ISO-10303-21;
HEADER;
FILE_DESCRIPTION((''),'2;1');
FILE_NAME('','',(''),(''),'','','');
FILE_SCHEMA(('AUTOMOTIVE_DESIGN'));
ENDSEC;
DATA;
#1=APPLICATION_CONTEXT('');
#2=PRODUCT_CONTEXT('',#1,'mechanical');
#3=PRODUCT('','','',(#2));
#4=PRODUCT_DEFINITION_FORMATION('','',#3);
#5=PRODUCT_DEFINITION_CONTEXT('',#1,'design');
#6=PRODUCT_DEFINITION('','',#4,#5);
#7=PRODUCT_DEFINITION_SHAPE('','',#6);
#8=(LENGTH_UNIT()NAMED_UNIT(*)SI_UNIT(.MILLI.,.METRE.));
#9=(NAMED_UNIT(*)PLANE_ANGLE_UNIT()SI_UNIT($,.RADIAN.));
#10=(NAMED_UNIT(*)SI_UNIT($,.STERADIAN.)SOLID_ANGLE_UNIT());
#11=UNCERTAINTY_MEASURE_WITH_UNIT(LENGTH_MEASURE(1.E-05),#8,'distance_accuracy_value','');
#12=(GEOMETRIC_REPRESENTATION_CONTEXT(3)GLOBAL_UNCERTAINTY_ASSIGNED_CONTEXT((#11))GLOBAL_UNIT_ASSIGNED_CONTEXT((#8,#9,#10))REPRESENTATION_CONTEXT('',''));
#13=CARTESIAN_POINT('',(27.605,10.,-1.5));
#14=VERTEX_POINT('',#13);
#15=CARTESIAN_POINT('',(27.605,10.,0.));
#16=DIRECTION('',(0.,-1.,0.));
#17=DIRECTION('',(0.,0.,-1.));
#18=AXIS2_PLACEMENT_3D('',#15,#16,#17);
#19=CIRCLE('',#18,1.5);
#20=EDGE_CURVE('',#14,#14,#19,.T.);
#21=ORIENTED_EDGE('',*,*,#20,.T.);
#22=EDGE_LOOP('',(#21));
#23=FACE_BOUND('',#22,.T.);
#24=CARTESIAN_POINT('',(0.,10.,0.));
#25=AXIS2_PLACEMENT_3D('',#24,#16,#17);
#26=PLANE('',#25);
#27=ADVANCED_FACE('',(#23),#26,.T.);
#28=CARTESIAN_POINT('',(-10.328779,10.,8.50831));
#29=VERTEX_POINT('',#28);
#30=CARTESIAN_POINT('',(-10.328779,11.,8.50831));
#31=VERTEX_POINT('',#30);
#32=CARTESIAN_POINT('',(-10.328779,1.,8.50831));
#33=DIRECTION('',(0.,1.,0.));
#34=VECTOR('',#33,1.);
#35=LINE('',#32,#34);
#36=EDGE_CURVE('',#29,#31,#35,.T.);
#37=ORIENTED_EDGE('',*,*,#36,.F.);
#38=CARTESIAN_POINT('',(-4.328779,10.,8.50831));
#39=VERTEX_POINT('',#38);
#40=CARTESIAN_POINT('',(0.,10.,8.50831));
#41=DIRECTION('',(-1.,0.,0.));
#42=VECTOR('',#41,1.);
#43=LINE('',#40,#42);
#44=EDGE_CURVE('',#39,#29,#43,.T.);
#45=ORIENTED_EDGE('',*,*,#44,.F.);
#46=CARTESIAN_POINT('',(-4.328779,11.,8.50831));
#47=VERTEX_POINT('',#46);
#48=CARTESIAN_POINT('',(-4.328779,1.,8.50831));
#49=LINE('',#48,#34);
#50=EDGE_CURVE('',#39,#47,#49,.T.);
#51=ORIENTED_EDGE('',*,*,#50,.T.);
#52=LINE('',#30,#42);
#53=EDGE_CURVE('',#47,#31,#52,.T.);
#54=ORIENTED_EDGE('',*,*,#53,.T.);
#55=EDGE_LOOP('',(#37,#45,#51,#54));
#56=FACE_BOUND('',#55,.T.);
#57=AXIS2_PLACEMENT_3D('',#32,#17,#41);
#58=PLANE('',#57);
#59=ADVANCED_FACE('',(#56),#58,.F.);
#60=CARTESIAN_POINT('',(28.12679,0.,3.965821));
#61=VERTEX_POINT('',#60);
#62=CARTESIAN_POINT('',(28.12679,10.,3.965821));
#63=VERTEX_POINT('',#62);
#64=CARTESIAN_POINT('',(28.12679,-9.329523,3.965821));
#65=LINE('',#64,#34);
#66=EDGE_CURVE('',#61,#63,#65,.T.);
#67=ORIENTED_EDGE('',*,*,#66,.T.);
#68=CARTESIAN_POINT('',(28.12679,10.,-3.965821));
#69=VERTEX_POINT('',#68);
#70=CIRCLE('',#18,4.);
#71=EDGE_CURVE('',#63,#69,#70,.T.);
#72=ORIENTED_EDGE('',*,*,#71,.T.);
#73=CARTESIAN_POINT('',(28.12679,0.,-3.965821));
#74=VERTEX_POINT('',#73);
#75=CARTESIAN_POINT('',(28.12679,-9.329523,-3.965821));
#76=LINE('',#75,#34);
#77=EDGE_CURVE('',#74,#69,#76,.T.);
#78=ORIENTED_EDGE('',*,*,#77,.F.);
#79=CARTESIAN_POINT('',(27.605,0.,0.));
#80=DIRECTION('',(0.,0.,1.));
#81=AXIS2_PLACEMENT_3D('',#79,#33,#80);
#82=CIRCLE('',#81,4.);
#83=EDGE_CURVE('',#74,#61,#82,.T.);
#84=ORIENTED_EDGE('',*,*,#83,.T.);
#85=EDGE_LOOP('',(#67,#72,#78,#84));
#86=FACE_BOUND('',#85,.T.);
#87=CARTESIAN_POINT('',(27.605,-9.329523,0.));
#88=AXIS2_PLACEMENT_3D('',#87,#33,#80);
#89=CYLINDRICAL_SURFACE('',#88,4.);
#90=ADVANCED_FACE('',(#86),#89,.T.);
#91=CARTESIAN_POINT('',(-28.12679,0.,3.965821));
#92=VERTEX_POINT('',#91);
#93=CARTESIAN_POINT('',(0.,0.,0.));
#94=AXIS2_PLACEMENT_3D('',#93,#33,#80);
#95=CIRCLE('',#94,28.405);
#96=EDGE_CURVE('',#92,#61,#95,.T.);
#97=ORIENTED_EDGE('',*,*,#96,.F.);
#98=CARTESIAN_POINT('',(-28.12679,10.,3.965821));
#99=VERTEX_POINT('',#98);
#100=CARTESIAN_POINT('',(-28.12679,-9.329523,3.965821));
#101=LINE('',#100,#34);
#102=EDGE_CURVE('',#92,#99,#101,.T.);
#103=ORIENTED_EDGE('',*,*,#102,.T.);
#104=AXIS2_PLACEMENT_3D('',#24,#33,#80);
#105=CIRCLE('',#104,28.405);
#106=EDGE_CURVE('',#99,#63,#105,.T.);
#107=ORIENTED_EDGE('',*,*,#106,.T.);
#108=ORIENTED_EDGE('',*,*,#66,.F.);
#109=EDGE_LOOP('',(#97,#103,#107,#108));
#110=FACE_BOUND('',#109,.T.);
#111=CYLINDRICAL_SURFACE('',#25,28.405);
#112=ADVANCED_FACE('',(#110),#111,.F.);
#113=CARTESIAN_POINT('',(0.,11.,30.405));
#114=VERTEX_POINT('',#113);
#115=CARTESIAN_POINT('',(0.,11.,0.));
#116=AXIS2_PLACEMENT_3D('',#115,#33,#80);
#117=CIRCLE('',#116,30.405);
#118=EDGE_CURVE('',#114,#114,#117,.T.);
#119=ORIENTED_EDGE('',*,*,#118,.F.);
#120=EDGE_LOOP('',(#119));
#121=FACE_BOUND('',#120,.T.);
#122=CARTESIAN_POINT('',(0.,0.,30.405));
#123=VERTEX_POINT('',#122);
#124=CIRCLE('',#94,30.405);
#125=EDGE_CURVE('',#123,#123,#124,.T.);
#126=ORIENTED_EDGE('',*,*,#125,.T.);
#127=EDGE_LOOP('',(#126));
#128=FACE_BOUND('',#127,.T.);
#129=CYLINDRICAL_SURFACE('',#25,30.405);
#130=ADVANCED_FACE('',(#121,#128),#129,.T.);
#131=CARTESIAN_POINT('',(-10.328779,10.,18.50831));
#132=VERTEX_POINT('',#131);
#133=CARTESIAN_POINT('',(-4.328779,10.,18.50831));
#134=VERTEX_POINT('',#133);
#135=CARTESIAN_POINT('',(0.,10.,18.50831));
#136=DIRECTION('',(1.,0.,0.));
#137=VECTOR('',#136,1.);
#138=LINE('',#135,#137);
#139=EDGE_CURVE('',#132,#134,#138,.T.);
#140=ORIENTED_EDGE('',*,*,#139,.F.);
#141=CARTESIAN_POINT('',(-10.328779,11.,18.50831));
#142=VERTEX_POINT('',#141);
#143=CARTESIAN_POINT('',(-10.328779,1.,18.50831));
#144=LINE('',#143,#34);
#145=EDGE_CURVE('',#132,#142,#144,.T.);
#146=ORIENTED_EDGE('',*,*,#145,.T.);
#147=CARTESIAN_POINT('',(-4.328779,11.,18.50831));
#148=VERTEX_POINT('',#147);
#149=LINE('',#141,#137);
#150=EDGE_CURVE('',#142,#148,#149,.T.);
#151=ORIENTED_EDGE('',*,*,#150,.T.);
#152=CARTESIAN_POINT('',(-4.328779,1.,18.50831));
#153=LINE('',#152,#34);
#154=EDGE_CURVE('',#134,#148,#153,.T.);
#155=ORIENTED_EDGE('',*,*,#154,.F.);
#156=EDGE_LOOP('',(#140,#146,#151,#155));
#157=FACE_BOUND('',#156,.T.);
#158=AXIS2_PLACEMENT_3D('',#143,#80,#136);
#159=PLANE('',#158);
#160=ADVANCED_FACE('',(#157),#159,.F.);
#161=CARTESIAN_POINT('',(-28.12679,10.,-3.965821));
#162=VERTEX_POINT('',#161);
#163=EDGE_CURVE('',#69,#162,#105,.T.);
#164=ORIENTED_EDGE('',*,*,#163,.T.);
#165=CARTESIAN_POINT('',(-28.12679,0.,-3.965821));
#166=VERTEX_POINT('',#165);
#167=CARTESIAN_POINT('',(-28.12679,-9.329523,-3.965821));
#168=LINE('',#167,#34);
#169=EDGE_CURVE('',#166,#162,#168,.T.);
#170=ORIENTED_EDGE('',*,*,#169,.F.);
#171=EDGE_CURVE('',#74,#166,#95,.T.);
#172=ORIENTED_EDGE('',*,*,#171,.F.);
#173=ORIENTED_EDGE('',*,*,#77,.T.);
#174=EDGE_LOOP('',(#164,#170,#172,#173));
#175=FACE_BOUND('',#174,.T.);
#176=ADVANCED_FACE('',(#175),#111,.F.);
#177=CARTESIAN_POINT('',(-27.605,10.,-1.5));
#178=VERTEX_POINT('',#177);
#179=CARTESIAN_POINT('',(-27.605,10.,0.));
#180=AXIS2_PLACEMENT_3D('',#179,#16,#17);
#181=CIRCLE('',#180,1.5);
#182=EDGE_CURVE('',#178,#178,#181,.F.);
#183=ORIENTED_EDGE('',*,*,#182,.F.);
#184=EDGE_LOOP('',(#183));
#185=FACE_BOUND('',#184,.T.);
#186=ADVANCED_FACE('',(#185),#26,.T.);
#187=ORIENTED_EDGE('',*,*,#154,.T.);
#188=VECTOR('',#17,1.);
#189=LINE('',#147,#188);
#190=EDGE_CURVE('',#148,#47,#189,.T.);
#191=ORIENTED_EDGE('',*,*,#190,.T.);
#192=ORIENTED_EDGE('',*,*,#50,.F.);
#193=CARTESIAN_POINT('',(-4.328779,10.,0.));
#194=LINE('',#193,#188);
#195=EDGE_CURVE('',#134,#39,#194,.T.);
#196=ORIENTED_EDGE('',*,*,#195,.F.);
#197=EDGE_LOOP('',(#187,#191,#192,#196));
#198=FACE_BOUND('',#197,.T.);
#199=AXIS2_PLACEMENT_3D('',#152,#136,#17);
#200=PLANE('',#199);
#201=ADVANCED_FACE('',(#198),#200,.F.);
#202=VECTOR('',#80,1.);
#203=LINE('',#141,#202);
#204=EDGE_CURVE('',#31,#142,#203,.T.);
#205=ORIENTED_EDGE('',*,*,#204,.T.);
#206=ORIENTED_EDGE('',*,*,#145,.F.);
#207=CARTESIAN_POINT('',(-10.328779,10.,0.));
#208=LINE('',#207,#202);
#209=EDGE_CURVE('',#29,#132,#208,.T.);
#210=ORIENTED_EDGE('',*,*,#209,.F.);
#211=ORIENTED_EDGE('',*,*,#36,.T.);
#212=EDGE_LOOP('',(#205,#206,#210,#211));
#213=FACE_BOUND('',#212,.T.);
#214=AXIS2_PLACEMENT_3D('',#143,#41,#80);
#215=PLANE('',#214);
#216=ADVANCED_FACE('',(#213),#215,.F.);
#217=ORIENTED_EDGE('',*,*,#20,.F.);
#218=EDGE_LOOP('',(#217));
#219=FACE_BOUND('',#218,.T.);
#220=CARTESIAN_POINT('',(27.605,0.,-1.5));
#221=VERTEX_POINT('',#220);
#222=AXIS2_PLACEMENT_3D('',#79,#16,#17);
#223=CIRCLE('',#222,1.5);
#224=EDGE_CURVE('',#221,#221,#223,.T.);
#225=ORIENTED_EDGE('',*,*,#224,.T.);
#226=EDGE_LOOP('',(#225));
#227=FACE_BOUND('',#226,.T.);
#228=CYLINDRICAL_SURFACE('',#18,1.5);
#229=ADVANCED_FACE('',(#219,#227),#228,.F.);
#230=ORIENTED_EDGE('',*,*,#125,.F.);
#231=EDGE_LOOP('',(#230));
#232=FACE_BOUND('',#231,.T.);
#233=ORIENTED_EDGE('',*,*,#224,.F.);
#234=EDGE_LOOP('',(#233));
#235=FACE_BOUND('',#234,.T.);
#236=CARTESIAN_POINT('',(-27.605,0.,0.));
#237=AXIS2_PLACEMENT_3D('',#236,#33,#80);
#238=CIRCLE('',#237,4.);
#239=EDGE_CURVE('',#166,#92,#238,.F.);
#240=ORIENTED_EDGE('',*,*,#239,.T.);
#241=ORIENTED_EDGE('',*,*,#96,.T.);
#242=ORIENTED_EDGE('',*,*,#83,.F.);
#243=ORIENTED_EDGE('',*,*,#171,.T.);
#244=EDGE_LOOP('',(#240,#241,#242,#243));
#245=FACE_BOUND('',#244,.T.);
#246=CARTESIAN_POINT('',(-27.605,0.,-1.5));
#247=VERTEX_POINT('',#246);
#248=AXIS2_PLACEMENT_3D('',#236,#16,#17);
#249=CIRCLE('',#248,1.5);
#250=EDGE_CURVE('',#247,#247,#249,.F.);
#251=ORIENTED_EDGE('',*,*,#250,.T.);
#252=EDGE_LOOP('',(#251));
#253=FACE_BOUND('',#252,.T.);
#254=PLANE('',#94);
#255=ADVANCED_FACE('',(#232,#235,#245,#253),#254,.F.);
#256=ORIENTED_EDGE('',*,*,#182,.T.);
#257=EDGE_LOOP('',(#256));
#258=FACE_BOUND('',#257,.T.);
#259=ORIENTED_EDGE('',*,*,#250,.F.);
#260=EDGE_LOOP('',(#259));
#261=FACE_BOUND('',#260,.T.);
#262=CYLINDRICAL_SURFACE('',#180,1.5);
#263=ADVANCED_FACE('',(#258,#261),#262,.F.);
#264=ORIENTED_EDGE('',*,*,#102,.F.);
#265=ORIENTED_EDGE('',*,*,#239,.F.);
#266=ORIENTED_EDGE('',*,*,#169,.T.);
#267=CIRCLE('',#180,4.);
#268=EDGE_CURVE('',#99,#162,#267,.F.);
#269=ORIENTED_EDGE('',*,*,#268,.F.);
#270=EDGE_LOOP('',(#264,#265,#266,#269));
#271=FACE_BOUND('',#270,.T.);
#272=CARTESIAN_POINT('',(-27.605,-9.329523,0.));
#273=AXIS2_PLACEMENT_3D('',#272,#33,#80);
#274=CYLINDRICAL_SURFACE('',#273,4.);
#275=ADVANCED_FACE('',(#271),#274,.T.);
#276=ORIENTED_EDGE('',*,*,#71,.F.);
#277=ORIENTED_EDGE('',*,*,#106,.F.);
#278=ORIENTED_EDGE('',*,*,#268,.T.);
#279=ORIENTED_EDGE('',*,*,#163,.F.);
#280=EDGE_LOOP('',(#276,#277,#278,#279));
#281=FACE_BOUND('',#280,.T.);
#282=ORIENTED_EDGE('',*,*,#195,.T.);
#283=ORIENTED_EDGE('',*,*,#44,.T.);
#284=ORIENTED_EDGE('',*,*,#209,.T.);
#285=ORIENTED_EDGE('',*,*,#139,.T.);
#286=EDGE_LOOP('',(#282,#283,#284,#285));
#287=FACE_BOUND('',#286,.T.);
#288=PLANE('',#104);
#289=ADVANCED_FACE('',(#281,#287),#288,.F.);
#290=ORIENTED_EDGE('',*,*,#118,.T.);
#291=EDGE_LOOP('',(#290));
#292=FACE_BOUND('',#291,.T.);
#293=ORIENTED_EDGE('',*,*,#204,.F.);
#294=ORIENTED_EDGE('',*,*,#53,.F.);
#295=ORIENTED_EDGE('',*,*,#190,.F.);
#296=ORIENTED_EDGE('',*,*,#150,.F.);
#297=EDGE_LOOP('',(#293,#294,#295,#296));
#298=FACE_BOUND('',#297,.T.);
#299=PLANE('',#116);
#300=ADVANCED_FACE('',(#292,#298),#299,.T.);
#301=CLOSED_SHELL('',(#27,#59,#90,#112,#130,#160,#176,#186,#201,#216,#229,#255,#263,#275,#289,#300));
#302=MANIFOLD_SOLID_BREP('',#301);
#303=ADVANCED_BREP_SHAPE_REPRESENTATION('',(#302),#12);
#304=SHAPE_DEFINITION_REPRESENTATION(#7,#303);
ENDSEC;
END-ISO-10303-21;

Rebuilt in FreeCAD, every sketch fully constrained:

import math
import FreeCAD as App
import Part
import Sketcher

V = App.Vector
Q = App.Units.Quantity

doc = App.newDocument("Part")
body = doc.addObject("PartDesign::Body", "Body")

# Sketch on XZ plane
sketch1 = doc.addObject("Sketcher::SketchObject", "Sketch")
body.addObject(sketch1)
sketch1.AttachmentSupport = (doc.XZ_Plane, [""])
sketch1.MapMode = "FlatFace"
sketch1.addGeometry(Part.Circle(V(0, 0, 0), V(0, 0, 1), 30), False)
sketch1.addGeometry(Part.Circle(V(0, 0, 0), V(0, 0, 1), 28), False)
sketch1.addConstraint(Sketcher.Constraint("Coincident", 0, 3, -1, 1))
sketch1.addConstraint(Sketcher.Constraint("Coincident", 1, 3, -1, 1))
sketch1.addConstraint(Sketcher.Constraint("Diameter", 0, Q("60.81 mm")))
sketch1.addConstraint(Sketcher.Constraint("Diameter", 1, Q("56.81 mm")))
pad1 = doc.addObject("PartDesign::Pad", "Pad")
body.addObject(pad1)
pad1.Profile = sketch1
pad1.Length = 10
pad1.Reversed = True

# Sketch on XZ plane
sketch2 = doc.addObject("Sketcher::SketchObject", "Sketch001")
body.addObject(sketch2)
sketch2.AttachmentSupport = (doc.XZ_Plane, [""])
sketch2.MapMode = "FlatFace"
sketch2.AttachmentOffset = App.Placement(V(0, 0, -10), App.Rotation())
sketch2.addGeometry(Part.Circle(V(0, 0, 0), V(0, 0, 1), 30), False)
sketch2.addConstraint(Sketcher.Constraint("Coincident", 0, 3, -1, 1))
sketch2.addConstraint(Sketcher.Constraint("Diameter", 0, Q("60.81 mm")))
pad2 = doc.addObject("PartDesign::Pad", "Pad001")
body.addObject(pad2)
pad2.Profile = sketch2
pad2.Length = 1
pad2.Reversed = True

# Sketch on XZ plane
sketch3 = doc.addObject("Sketcher::SketchObject", "Sketch002")
body.addObject(sketch3)
sketch3.AttachmentSupport = (doc.XZ_Plane, [""])
sketch3.MapMode = "FlatFace"
sketch3.addGeometry(Part.ArcOfCircle(Part.Circle(V(-27.6, 0, 0), V(0, 0, 1), 4), math.radians(-97), math.radians(97)), False)
sketch3.addGeometry(Part.ArcOfCircle(Part.Circle(V(0, 0, 0), V(0, 0, 1), 28.4), math.radians(171.97), math.radians(188.03)), False)
sketch3.addGeometry(Part.ArcOfCircle(Part.Circle(V(0, 0, 0), V(0, 0, 1), 28.4), math.radians(0), math.radians(8.03)), False)
sketch3.addGeometry(Part.ArcOfCircle(Part.Circle(V(27.6, 0, 0), V(0, 0, 1), 4), math.radians(83), math.radians(277)), False)
sketch3.addGeometry(Part.ArcOfCircle(Part.Circle(V(0, 0, 0), V(0, 0, 1), 28.4), math.radians(-8.03), math.radians(0)), False)
sketch3.addConstraint(Sketcher.Constraint("Coincident", 0, 1, 1, 2))
sketch3.addConstraint(Sketcher.Constraint("Coincident", 1, 1, 0, 2))
sketch3.addConstraint(Sketcher.Constraint("Coincident", 2, 2, 3, 1))
sketch3.addConstraint(Sketcher.Constraint("Coincident", 3, 2, 4, 1))
sketch3.addConstraint(Sketcher.Constraint("Tangent", 4, 2, 2, 1))
sketch3.addConstraint(Sketcher.Constraint("Coincident", 1, 3, -1, 1))
sketch3.addConstraint(Sketcher.Constraint("Coincident", 2, 3, -1, 1))
sketch3.addConstraint(Sketcher.Constraint("Equal", 1, 2))
sketch3.addConstraint(Sketcher.Constraint("Equal", 0, 3))
sketch3.addConstraint(Sketcher.Constraint("Equal", 2, 4))
sketch3.addConstraint(Sketcher.Constraint("Symmetric", 0, 3, 3, 3, -1, 1))
sketch3.addConstraint(Sketcher.Constraint("PointOnObject", 0, 3, -1))
sketch3.addConstraint(Sketcher.Constraint("PointOnObject", 4, 2, -1))
sketch3.addConstraint(Sketcher.Constraint("Radius", 0, Q("4 mm")))
sketch3.addConstraint(Sketcher.Constraint("Radius", 1, Q("28.405 mm")))
sketch3.addConstraint(Sketcher.Constraint("DistanceX", 3, 3, 4, 2, Q("0.8 mm")))
pad3 = doc.addObject("PartDesign::Pad", "Pad002")
body.addObject(pad3)
pad3.Profile = sketch3
pad3.Length = 10
pad3.Reversed = True

# Sketch on XZ plane
sketch4 = doc.addObject("Sketcher::SketchObject", "Sketch003")
body.addObject(sketch4)
sketch4.AttachmentSupport = (doc.XZ_Plane, [""])
sketch4.MapMode = "FlatFace"
sketch4.addGeometry(Part.Circle(V(-27.6, 0, 0), V(0, 0, 1), 1.5), False)
sketch4.addGeometry(Part.Circle(V(27.6, 0, 0), V(0, 0, 1), 1.5), False)
sketch4.addConstraint(Sketcher.Constraint("Equal", 0, 1))
sketch4.addConstraint(Sketcher.Constraint("Symmetric", 0, 3, 1, 3, -1, 1))
sketch4.addConstraint(Sketcher.Constraint("PointOnObject", 0, 3, -1))
sketch4.addConstraint(Sketcher.Constraint("Diameter", 0, Q("3 mm")))
sketch4.addConstraint(Sketcher.Constraint("DistanceX", 0, 3, 1, 3, Q("55.21 mm")))
pocket1 = doc.addObject("PartDesign::Pocket", "Pocket")
body.addObject(pocket1)
pocket1.Profile = sketch4
pocket1.Length = 10

# Sketch on XZ plane
sketch5 = doc.addObject("Sketcher::SketchObject", "Sketch004")
body.addObject(sketch5)
sketch5.AttachmentSupport = (doc.XZ_Plane, [""])
sketch5.MapMode = "FlatFace"
sketch5.AttachmentOffset = App.Placement(V(0, 0, -11), App.Rotation())
sketch5.addGeometry(Part.LineSegment(V(-10, 9, 0), V(-10, 19, 0)), False)
sketch5.addGeometry(Part.LineSegment(V(-10, 19, 0), V(-4, 19, 0)), False)
sketch5.addGeometry(Part.LineSegment(V(-4, 19, 0), V(-4, 9, 0)), False)
sketch5.addGeometry(Part.LineSegment(V(-4, 9, 0), V(-10, 9, 0)), False)
sketch5.addConstraint(Sketcher.Constraint("Coincident", 0, 2, 1, 1))
sketch5.addConstraint(Sketcher.Constraint("Coincident", 1, 2, 2, 1))
sketch5.addConstraint(Sketcher.Constraint("Coincident", 2, 2, 3, 1))
sketch5.addConstraint(Sketcher.Constraint("Coincident", 3, 2, 0, 1))
sketch5.addConstraint(Sketcher.Constraint("Vertical", 0))
sketch5.addConstraint(Sketcher.Constraint("Horizontal", 1))
sketch5.addConstraint(Sketcher.Constraint("Vertical", 2))
sketch5.addConstraint(Sketcher.Constraint("Horizontal", 3))
sketch5.addConstraint(Sketcher.Constraint("DistanceX", 1, 1, 1, 2, Q("6 mm")))
sketch5.addConstraint(Sketcher.Constraint("DistanceY", 0, 1, 0, 2, Q("10 mm")))
sketch5.addConstraint(Sketcher.Constraint("DistanceX", 0, 2, -1, 1, Q("10.328779 mm")))
sketch5.addConstraint(Sketcher.Constraint("DistanceY", -1, 1, 0, 2, Q("18.50831 mm")))
pocket2 = doc.addObject("PartDesign::Pocket", "Pocket001")
body.addObject(pocket2)
pocket2.Profile = sketch5
pocket2.Length = 10
pocket2.Reversed = True

doc.recompute()
